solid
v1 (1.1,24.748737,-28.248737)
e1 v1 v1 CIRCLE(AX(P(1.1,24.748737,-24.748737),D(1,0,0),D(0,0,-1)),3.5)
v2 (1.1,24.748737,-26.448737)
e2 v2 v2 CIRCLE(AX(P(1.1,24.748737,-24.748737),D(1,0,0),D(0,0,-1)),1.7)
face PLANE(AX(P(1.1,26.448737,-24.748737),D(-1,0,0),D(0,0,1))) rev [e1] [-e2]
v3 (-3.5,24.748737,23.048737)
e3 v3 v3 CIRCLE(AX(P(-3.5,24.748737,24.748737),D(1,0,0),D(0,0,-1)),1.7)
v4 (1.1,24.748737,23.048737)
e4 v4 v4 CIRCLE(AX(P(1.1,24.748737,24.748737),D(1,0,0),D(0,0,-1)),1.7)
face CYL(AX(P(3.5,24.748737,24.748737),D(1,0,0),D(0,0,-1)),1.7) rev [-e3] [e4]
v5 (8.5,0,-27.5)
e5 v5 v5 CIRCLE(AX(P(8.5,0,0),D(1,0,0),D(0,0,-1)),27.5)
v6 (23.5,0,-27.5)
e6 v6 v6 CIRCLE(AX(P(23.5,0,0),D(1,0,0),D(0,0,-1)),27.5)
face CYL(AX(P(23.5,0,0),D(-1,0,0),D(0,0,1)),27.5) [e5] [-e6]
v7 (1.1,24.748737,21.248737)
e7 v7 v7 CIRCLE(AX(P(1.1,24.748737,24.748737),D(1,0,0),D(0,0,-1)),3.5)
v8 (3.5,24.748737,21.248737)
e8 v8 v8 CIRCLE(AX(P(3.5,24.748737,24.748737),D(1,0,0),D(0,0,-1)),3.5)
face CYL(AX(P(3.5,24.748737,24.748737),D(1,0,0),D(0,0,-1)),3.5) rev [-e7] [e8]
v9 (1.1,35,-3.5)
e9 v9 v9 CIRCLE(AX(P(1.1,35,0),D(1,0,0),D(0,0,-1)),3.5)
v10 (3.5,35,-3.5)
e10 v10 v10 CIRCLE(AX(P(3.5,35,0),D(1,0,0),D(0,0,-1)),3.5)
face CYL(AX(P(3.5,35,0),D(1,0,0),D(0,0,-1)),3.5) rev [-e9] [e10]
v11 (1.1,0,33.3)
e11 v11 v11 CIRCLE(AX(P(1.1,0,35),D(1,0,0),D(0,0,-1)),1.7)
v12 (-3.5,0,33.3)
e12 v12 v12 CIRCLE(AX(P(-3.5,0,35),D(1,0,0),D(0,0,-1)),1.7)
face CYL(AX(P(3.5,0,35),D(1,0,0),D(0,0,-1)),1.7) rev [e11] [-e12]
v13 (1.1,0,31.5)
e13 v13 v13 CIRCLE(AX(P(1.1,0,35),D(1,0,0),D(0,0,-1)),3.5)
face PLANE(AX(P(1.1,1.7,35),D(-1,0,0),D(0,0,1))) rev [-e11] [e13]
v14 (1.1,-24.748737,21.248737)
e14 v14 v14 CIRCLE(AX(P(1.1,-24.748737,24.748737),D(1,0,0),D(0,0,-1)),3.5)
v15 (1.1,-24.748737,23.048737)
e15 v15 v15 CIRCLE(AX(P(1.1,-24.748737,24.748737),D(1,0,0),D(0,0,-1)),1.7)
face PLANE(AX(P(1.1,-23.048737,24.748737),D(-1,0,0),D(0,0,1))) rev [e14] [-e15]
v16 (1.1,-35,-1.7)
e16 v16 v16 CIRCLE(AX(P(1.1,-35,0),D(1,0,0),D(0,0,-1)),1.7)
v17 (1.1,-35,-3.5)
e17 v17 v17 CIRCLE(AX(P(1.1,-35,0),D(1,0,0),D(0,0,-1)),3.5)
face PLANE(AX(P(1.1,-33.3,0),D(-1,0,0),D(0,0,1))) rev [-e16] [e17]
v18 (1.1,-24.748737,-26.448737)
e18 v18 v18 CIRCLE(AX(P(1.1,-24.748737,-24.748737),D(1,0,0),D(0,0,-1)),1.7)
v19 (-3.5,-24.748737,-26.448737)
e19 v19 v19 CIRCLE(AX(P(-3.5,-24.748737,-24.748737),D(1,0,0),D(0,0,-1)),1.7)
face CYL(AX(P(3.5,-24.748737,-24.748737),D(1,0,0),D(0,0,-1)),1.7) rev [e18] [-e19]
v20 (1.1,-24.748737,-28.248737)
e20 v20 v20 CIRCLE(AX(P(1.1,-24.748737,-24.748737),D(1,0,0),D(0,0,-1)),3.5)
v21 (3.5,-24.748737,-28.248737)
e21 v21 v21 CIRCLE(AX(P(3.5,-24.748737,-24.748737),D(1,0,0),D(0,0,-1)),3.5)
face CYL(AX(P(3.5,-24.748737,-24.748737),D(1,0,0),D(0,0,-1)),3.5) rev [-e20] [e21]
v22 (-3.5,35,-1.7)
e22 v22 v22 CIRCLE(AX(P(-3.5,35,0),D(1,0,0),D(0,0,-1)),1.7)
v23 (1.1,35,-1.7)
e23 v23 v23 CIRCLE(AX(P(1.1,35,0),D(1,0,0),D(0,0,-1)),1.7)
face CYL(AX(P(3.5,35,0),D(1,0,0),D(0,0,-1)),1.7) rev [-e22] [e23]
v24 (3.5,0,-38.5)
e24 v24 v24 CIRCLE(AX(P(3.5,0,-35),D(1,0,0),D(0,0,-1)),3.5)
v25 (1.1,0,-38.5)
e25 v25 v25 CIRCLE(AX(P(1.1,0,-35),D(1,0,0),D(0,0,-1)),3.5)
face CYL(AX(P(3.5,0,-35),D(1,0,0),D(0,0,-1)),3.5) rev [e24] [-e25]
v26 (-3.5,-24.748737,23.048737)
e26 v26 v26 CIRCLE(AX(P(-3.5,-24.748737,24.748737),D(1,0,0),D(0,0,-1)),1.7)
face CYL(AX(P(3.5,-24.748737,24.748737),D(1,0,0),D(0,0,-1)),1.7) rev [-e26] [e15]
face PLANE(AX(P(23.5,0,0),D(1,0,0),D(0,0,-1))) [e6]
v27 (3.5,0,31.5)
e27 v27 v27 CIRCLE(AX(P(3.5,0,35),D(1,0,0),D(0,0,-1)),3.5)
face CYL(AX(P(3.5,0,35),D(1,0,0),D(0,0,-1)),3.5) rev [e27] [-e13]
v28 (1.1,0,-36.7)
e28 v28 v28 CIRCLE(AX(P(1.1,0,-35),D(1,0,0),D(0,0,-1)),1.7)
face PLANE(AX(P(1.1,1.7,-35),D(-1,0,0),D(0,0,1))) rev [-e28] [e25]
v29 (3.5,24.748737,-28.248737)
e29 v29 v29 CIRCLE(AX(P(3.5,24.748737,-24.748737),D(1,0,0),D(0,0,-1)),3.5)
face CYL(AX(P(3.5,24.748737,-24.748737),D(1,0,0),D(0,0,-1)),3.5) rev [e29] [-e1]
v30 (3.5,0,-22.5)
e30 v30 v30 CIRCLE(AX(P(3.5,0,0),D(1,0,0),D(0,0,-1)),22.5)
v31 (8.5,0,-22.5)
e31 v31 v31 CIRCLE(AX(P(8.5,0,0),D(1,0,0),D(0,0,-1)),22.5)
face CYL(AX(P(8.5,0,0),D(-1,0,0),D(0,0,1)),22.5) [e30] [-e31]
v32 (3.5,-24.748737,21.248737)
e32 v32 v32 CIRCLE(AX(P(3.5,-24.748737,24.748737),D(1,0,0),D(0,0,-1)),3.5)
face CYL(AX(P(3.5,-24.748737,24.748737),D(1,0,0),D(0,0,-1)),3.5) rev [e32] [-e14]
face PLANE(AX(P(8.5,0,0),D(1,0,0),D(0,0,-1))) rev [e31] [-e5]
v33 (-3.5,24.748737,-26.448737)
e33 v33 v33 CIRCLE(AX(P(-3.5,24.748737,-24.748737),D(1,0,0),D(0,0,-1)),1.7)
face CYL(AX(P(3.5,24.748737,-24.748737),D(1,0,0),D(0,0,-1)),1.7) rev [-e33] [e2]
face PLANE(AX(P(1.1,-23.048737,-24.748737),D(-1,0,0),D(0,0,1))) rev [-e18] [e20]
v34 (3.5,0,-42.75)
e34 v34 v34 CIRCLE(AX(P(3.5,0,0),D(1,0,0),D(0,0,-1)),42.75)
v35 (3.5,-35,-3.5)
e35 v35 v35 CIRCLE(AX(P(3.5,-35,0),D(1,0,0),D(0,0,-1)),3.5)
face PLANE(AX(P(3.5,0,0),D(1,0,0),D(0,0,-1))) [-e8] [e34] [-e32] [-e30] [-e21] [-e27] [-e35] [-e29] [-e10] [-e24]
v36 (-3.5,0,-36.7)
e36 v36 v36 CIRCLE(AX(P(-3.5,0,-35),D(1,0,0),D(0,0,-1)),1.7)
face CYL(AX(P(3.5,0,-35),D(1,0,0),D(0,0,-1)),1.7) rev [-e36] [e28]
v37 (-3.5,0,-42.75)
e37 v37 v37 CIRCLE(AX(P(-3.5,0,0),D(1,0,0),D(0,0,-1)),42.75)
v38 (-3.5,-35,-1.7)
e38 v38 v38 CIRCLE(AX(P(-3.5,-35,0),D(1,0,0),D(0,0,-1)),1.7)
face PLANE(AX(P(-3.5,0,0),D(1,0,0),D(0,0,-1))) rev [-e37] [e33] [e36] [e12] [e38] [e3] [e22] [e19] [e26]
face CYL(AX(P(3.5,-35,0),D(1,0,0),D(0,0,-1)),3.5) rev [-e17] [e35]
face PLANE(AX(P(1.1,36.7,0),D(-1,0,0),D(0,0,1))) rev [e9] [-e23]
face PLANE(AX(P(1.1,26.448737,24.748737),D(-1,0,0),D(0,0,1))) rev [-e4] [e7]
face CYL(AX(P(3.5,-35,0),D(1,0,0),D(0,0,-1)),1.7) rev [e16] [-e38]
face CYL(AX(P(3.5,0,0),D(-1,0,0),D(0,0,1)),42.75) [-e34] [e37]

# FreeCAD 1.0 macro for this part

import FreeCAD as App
import Part
import Sketcher
from FreeCAD import Vector

doc = App.newDocument("Part")
body = doc.addObject("PartDesign::Body", "Body")

# Sketch on YZ plane
sketch1 = body.newObject("Sketcher::SketchObject", "Sketch")
sketch1.AttachmentSupport = (doc.getObject("YZ_Plane"), [""])
sketch1.MapMode = "FlatFace"
sketch1.addGeometry(Part.Circle(Vector(0, 0, 0), Vector(0, 0, 1), 42.75), False)
sketch1.addConstraint(Sketcher.Constraint("Coincident", 0, 3, -1, 1))
sketch1.addConstraint(Sketcher.Constraint("Diameter", 0, 85.5))
pad1 = body.newObject("PartDesign::Pad", "Pad")
pad1.Profile = sketch1
pad1.Length = 7
pad1.Midplane = True

# Sketch on YZ plane
sketch2 = body.newObject("Sketcher::SketchObject", "Sketch001")
sketch2.AttachmentSupport = (doc.getObject("YZ_Plane"), [""])
sketch2.MapMode = "FlatFace"
sketch2.AttachmentOffset = App.Placement(Vector(0, 0, 3.5), App.Rotation())
sketch2.addGeometry(Part.Circle(Vector(35, 0, 0), Vector(0, 0, 1), 1.7), False)
sketch2.addGeometry(Part.Circle(Vector(24.748737, -24.748737, 0), Vector(0, 0, 1), 1.7), False)
sketch2.addGeometry(Part.Circle(Vector(0, -35, 0), Vector(0, 0, 1), 1.7), False)
sketch2.addGeometry(Part.Circle(Vector(-24.748737, -24.748737, 0), Vector(0, 0, 1), 1.7), False)
sketch2.addGeometry(Part.Circle(Vector(-35, 0, 0), Vector(0, 0, 1), 1.7), False)
sketch2.addGeometry(Part.Circle(Vector(-24.748737, 24.748737, 0), Vector(0, 0, 1), 1.7), False)
sketch2.addGeometry(Part.Circle(Vector(0, 35, 0), Vector(0, 0, 1), 1.7), False)
sketch2.addGeometry(Part.Circle(Vector(24.748737, 24.748737, 0), Vector(0, 0, 1), 1.7), False)
sketch2.addConstraint(Sketcher.Constraint("Equal", 0, 1))
sketch2.addConstraint(Sketcher.Constraint("Equal", 1, 2))
sketch2.addConstraint(Sketcher.Constraint("Equal", 2, 3))
sketch2.addConstraint(Sketcher.Constraint("Equal", 3, 4))
sketch2.addConstraint(Sketcher.Constraint("Equal", 4, 5))
sketch2.addConstraint(Sketcher.Constraint("Equal", 5, 6))
sketch2.addConstraint(Sketcher.Constraint("Equal", 6, 7))
sketch2.addConstraint(Sketcher.Constraint("Symmetric", 0, 3, 4, 3, -1, 1))
sketch2.addConstraint(Sketcher.Constraint("Symmetric", 1, 3, 5, 3, -1, 1))
sketch2.addConstraint(Sketcher.Constraint("Symmetric", 2, 3, 6, 3, -1, 1))
sketch2.addConstraint(Sketcher.Constraint("Symmetric", 3, 3, 7, 3, -1, 1))
sketch2.addConstraint(Sketcher.Constraint("Symmetric", 1, 3, 3, 3, -2))
sketch2.addConstraint(Sketcher.Constraint("PointOnObject", 0, 3, -1))
sketch2.addConstraint(Sketcher.Constraint("PointOnObject", 2, 3, -2))
sketch2.addConstraint(Sketcher.Constraint("Diameter", 0, 3.4))
sketch2.addConstraint(Sketcher.Constraint("DistanceX", -1, 1, 0, 3, 35.0))
sketch2.addConstraint(Sketcher.Constraint("DistanceY", 2, 3, -1, 1, 35.0))
sketch2.addConstraint(Sketcher.Constraint("DistanceX", -1, 1, 1, 3, 24.748737))
sketch2.addConstraint(Sketcher.Constraint("DistanceY", 1, 3, -1, 1, 24.748737))
doc.recompute()
hole = body.newObject("PartDesign::Hole", "Hole")
hole.Profile = sketch2
hole.ThreadType = "None"
hole.Diameter = 3.4
hole.DepthType = "Dimension"
hole.Depth = 20
hole.DrillPoint = "Angled"
hole.DrillPointAngle = 118
hole.HoleCutType = "Counterbore"
hole.HoleCutDiameter = 7
hole.HoleCutDepth = 2.4

# Sketch on YZ plane
sketch3 = body.newObject("Sketcher::SketchObject", "Sketch002")
sketch3.AttachmentSupport = (doc.getObject("YZ_Plane"), [""])
sketch3.MapMode = "FlatFace"
sketch3.AttachmentOffset = App.Placement(Vector(0, 0, 3.5), App.Rotation())
sketch3.addGeometry(Part.Circle(Vector(0, 0, 0), Vector(0, 0, 1), 22.5), False)
sketch3.addConstraint(Sketcher.Constraint("Coincident", 0, 3, -1, 1))
sketch3.addConstraint(Sketcher.Constraint("Diameter", 0, 45.0))
pad2 = body.newObject("PartDesign::Pad", "Pad001")
pad2.Profile = sketch3
pad2.Length = 5

# Sketch on YZ plane
sketch4 = body.newObject("Sketcher::SketchObject", "Sketch003")
sketch4.AttachmentSupport = (doc.getObject("YZ_Plane"), [""])
sketch4.MapMode = "FlatFace"
sketch4.AttachmentOffset = App.Placement(Vector(0, 0, 8.5), App.Rotation())
sketch4.addGeometry(Part.Circle(Vector(0, 0, 0), Vector(0, 0, 1), 27.5), False)
sketch4.addConstraint(Sketcher.Constraint("Coincident", 0, 3, -1, 1))
sketch4.addConstraint(Sketcher.Constraint("Diameter", 0, 55.0))
pad3 = body.newObject("PartDesign::Pad", "Pad002")
pad3.Profile = sketch4
pad3.Length = 15

doc.recompute()
